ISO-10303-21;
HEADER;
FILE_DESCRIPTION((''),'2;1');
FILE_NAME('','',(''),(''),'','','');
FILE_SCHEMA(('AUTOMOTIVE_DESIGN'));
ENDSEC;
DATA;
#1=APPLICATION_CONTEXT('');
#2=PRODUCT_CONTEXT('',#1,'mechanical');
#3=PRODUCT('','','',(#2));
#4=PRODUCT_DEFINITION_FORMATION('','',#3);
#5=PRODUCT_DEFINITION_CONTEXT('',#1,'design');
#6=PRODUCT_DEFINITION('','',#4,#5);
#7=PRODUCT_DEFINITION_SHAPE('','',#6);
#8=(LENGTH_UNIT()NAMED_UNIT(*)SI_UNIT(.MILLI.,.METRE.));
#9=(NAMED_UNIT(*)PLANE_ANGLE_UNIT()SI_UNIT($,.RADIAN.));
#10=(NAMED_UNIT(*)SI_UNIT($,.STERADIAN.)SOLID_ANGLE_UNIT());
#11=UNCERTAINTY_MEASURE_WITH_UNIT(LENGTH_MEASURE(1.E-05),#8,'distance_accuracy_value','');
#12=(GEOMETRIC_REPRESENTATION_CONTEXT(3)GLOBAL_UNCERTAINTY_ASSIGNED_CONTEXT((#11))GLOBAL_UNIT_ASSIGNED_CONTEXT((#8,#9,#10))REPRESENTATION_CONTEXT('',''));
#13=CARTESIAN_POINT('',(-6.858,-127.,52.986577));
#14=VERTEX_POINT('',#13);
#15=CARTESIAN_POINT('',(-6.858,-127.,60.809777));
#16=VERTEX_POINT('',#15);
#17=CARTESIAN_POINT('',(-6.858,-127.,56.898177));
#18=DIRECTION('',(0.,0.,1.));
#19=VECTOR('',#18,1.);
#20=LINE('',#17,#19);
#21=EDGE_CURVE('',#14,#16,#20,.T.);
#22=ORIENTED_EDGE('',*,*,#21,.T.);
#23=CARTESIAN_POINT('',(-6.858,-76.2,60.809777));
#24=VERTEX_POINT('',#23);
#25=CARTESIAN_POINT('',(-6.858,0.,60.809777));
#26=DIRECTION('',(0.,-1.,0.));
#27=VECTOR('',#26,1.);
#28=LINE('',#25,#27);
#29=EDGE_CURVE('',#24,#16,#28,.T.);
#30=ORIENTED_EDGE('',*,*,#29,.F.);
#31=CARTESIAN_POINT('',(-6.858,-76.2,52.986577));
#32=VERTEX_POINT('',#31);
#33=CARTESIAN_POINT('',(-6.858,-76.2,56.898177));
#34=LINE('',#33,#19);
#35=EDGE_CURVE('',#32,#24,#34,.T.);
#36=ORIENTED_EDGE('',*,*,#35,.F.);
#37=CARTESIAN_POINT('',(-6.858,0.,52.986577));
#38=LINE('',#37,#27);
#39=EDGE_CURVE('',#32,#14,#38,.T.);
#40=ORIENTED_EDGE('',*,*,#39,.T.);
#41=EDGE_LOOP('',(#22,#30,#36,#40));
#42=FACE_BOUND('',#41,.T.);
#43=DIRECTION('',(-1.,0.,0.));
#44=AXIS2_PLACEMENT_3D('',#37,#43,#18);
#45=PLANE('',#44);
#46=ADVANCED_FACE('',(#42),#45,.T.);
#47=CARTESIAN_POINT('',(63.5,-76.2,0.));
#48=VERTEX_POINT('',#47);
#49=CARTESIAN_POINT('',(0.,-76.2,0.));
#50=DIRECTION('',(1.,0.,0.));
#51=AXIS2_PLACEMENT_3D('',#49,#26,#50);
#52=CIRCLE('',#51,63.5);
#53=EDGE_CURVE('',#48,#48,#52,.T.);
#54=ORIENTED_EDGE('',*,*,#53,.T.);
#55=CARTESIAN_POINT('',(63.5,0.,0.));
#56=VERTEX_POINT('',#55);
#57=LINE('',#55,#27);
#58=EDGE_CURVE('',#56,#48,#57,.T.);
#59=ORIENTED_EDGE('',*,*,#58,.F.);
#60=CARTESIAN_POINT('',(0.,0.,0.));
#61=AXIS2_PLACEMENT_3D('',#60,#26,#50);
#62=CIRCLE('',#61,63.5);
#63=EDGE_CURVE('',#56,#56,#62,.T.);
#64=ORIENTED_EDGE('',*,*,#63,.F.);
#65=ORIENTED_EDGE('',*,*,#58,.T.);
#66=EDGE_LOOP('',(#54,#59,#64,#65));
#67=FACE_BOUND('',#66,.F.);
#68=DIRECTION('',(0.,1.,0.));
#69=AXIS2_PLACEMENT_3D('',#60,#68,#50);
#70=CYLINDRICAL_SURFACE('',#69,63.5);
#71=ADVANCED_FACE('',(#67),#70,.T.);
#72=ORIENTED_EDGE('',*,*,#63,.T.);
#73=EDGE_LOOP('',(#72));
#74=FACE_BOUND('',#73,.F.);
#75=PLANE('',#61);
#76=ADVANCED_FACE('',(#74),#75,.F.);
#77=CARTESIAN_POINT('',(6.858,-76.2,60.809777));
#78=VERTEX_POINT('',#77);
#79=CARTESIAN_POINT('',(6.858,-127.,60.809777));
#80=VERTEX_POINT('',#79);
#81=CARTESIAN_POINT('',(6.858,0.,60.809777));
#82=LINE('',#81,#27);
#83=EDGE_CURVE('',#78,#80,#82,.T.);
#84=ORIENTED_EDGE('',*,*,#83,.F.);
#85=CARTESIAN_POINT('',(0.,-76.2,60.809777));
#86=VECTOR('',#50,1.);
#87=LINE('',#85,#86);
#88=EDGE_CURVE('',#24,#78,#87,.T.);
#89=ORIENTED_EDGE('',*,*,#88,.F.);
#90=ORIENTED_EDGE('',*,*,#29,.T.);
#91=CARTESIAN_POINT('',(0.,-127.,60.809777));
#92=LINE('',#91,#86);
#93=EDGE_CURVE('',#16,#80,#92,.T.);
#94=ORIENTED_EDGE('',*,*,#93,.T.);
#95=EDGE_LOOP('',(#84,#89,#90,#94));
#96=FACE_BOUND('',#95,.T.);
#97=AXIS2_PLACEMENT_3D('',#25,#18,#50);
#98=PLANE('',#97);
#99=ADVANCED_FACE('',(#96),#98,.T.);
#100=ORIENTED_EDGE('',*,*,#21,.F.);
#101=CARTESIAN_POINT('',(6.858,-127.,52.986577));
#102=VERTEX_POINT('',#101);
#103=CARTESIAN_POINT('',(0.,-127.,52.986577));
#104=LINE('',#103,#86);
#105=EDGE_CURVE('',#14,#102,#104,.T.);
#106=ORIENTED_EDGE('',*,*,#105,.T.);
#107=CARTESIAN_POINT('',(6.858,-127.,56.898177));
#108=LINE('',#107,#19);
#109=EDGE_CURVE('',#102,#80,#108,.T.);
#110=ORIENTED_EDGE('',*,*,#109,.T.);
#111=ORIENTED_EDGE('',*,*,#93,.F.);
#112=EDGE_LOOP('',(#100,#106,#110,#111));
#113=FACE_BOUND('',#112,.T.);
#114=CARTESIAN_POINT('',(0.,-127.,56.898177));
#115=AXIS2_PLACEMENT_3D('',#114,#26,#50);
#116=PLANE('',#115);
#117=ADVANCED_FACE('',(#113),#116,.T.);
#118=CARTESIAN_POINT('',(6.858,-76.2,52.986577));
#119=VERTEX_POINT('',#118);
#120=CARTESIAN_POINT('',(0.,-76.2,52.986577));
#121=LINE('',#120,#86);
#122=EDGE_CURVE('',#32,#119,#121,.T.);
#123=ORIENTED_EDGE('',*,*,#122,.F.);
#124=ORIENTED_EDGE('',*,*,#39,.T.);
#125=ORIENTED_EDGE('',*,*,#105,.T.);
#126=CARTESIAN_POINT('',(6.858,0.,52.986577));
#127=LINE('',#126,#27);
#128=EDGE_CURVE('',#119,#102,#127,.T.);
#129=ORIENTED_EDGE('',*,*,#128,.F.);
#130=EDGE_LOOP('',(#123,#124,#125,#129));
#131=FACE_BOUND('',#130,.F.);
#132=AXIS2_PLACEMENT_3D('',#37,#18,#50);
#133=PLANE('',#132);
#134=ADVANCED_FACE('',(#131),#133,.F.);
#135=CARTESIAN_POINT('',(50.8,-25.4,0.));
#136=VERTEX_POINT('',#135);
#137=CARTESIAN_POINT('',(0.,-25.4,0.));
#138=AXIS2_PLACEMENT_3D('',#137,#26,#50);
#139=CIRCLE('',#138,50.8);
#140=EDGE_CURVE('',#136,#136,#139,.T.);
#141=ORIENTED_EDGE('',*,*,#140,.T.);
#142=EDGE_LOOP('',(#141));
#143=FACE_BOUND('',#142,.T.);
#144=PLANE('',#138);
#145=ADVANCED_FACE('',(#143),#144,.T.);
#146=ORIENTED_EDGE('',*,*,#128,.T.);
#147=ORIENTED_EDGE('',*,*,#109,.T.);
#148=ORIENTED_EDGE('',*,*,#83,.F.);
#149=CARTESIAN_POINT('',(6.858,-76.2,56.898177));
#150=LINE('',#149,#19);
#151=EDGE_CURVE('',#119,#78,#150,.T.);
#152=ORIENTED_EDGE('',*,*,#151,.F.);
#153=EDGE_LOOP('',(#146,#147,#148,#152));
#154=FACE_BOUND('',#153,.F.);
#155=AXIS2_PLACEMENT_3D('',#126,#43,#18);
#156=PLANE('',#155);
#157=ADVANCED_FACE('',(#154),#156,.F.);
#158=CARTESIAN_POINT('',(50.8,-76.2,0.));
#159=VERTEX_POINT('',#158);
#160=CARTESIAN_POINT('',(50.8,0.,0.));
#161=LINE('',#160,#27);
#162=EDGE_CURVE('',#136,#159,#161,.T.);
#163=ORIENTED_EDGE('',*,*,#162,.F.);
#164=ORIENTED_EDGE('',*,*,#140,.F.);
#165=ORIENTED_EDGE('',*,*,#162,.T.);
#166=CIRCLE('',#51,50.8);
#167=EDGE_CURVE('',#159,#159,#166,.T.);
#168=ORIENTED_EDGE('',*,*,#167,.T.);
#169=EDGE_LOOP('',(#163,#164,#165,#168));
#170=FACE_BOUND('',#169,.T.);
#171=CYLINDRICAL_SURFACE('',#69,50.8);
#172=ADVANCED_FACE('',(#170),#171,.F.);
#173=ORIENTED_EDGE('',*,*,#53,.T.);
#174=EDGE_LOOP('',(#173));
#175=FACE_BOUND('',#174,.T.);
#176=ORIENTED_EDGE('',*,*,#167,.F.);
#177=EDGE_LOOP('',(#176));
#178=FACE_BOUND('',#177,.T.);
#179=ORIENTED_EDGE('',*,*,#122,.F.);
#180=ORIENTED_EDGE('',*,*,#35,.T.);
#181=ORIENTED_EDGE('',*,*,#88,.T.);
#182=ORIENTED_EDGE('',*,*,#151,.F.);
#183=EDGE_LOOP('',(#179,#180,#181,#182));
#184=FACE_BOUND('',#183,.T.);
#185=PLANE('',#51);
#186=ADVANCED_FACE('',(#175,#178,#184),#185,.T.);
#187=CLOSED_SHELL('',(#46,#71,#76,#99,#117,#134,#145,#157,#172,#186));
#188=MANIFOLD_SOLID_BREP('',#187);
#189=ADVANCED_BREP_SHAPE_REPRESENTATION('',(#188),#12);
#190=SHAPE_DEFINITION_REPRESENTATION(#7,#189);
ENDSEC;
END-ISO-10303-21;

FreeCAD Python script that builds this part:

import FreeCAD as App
import Part
import Sketcher
Q = App.Units.Quantity


def add_polygon(sketch, points):
    """Adds a closed chain of lines whose ends are joined by coincident constraints."""
    first, n = sketch.GeometryCount, len(points)
    for a, b in zip(points, points[1:] + points[:1]):
        sketch.addGeometry(Part.LineSegment(App.Vector(*a, 0), App.Vector(*b, 0)), False)
    for i in range(n):
        sketch.addConstraint(Sketcher.Constraint("Coincident", first + i, 2, first + (i + 1) % n, 1))

doc = App.newDocument("Part")
body = doc.addObject("PartDesign::Body", "Body")

# Sketch on XZ plane
sketch1 = doc.addObject("Sketcher::SketchObject", "Sketch")
body.addObject(sketch1)
sketch1.AttachmentSupport = (doc.XZ_Plane, [""])
sketch1.MapMode = "FlatFace"
sketch1.addGeometry(Part.Circle(App.Vector(0, 0, 0), App.Vector(0, 0, 1), 64), False)  # 0
sketch1.addGeometry(Part.Circle(App.Vector(0, 0, 0), App.Vector(0, 0, 1), 51), False)  # 1
add_polygon(sketch1, [(7, 53), (-7, 53), (-7, 61), (7, 61)])  # lines 2-5
sketch1.addConstraint([
    Sketcher.Constraint("Horizontal", 2),
    Sketcher.Constraint("Vertical", 3),
    Sketcher.Constraint("Horizontal", 4),
    Sketcher.Constraint("Vertical", 5),
    Sketcher.Constraint("Coincident", 0, 3, -1, 1),
    Sketcher.Constraint("Coincident", 1, 3, -1, 1),
    Sketcher.Constraint("Diameter", 0, Q("5 in")),
    Sketcher.Constraint("Diameter", 1, Q("4 in")),
    Sketcher.Constraint("DistanceX", 2, 2, 2, 1, Q("0.54 in")),
    Sketcher.Constraint("DistanceY", 3, 1, 3, 2, Q("0.308 in")),
    Sketcher.Constraint("DistanceX", 2, 2, -1, 1, Q("0.27 in")),
    Sketcher.Constraint("DistanceY", -1, 1, 2, 2, 52.986577),
])
pad1 = doc.addObject("PartDesign::Pad", "Pad")
body.addObject(pad1)
pad1.Profile = sketch1
pad1.Length = Q("3 in")

# Sketch on XZ plane
sketch2 = doc.addObject("Sketcher::SketchObject", "Sketch001")
body.addObject(sketch2)
sketch2.AttachmentSupport = (doc.XZ_Plane, [""])
sketch2.MapMode = "FlatFace"
sketch2.addGeometry(Part.Circle(App.Vector(0, 0, 0), App.Vector(0, 0, 1), 51), False)
sketch2.addConstraint([
    Sketcher.Constraint("Coincident", 0, 3, -1, 1),
    Sketcher.Constraint("Diameter", 0, Q("4 in")),
])
pad2 = doc.addObject("PartDesign::Pad", "Pad001")
body.addObject(pad2)
pad2.Profile = sketch2
pad2.Length = Q("1 in")

# Sketch on XZ plane
sketch3 = doc.addObject("Sketcher::SketchObject", "Sketch002")
body.addObject(sketch3)
sketch3.AttachmentSupport = (doc.XZ_Plane, [""])
sketch3.MapMode = "FlatFace"
add_polygon(sketch3, [(-7, 61), (-7, 53), (7, 53), (7, 61)])  # lines 0-3
sketch3.addConstraint([
    Sketcher.Constraint("Vertical", 0),
    Sketcher.Constraint("Horizontal", 1),
    Sketcher.Constraint("Vertical", 2),
    Sketcher.Constraint("Horizontal", 3),
    Sketcher.Constraint("DistanceX", 1, 1, 1, 2, Q("0.54 in")),
    Sketcher.Constraint("DistanceY", 0, 2, 0, 1, Q("0.308 in")),
    Sketcher.Constraint("DistanceX", 0, 2, -1, 1, Q("0.27 in")),
    Sketcher.Constraint("DistanceY", -1, 1, 0, 2, 52.986577),
])
pad3 = doc.addObject("PartDesign::Pad", "Pad002")
body.addObject(pad3)
pad3.Profile = sketch3
pad3.Length = Q("5 in")

doc.recompute()
